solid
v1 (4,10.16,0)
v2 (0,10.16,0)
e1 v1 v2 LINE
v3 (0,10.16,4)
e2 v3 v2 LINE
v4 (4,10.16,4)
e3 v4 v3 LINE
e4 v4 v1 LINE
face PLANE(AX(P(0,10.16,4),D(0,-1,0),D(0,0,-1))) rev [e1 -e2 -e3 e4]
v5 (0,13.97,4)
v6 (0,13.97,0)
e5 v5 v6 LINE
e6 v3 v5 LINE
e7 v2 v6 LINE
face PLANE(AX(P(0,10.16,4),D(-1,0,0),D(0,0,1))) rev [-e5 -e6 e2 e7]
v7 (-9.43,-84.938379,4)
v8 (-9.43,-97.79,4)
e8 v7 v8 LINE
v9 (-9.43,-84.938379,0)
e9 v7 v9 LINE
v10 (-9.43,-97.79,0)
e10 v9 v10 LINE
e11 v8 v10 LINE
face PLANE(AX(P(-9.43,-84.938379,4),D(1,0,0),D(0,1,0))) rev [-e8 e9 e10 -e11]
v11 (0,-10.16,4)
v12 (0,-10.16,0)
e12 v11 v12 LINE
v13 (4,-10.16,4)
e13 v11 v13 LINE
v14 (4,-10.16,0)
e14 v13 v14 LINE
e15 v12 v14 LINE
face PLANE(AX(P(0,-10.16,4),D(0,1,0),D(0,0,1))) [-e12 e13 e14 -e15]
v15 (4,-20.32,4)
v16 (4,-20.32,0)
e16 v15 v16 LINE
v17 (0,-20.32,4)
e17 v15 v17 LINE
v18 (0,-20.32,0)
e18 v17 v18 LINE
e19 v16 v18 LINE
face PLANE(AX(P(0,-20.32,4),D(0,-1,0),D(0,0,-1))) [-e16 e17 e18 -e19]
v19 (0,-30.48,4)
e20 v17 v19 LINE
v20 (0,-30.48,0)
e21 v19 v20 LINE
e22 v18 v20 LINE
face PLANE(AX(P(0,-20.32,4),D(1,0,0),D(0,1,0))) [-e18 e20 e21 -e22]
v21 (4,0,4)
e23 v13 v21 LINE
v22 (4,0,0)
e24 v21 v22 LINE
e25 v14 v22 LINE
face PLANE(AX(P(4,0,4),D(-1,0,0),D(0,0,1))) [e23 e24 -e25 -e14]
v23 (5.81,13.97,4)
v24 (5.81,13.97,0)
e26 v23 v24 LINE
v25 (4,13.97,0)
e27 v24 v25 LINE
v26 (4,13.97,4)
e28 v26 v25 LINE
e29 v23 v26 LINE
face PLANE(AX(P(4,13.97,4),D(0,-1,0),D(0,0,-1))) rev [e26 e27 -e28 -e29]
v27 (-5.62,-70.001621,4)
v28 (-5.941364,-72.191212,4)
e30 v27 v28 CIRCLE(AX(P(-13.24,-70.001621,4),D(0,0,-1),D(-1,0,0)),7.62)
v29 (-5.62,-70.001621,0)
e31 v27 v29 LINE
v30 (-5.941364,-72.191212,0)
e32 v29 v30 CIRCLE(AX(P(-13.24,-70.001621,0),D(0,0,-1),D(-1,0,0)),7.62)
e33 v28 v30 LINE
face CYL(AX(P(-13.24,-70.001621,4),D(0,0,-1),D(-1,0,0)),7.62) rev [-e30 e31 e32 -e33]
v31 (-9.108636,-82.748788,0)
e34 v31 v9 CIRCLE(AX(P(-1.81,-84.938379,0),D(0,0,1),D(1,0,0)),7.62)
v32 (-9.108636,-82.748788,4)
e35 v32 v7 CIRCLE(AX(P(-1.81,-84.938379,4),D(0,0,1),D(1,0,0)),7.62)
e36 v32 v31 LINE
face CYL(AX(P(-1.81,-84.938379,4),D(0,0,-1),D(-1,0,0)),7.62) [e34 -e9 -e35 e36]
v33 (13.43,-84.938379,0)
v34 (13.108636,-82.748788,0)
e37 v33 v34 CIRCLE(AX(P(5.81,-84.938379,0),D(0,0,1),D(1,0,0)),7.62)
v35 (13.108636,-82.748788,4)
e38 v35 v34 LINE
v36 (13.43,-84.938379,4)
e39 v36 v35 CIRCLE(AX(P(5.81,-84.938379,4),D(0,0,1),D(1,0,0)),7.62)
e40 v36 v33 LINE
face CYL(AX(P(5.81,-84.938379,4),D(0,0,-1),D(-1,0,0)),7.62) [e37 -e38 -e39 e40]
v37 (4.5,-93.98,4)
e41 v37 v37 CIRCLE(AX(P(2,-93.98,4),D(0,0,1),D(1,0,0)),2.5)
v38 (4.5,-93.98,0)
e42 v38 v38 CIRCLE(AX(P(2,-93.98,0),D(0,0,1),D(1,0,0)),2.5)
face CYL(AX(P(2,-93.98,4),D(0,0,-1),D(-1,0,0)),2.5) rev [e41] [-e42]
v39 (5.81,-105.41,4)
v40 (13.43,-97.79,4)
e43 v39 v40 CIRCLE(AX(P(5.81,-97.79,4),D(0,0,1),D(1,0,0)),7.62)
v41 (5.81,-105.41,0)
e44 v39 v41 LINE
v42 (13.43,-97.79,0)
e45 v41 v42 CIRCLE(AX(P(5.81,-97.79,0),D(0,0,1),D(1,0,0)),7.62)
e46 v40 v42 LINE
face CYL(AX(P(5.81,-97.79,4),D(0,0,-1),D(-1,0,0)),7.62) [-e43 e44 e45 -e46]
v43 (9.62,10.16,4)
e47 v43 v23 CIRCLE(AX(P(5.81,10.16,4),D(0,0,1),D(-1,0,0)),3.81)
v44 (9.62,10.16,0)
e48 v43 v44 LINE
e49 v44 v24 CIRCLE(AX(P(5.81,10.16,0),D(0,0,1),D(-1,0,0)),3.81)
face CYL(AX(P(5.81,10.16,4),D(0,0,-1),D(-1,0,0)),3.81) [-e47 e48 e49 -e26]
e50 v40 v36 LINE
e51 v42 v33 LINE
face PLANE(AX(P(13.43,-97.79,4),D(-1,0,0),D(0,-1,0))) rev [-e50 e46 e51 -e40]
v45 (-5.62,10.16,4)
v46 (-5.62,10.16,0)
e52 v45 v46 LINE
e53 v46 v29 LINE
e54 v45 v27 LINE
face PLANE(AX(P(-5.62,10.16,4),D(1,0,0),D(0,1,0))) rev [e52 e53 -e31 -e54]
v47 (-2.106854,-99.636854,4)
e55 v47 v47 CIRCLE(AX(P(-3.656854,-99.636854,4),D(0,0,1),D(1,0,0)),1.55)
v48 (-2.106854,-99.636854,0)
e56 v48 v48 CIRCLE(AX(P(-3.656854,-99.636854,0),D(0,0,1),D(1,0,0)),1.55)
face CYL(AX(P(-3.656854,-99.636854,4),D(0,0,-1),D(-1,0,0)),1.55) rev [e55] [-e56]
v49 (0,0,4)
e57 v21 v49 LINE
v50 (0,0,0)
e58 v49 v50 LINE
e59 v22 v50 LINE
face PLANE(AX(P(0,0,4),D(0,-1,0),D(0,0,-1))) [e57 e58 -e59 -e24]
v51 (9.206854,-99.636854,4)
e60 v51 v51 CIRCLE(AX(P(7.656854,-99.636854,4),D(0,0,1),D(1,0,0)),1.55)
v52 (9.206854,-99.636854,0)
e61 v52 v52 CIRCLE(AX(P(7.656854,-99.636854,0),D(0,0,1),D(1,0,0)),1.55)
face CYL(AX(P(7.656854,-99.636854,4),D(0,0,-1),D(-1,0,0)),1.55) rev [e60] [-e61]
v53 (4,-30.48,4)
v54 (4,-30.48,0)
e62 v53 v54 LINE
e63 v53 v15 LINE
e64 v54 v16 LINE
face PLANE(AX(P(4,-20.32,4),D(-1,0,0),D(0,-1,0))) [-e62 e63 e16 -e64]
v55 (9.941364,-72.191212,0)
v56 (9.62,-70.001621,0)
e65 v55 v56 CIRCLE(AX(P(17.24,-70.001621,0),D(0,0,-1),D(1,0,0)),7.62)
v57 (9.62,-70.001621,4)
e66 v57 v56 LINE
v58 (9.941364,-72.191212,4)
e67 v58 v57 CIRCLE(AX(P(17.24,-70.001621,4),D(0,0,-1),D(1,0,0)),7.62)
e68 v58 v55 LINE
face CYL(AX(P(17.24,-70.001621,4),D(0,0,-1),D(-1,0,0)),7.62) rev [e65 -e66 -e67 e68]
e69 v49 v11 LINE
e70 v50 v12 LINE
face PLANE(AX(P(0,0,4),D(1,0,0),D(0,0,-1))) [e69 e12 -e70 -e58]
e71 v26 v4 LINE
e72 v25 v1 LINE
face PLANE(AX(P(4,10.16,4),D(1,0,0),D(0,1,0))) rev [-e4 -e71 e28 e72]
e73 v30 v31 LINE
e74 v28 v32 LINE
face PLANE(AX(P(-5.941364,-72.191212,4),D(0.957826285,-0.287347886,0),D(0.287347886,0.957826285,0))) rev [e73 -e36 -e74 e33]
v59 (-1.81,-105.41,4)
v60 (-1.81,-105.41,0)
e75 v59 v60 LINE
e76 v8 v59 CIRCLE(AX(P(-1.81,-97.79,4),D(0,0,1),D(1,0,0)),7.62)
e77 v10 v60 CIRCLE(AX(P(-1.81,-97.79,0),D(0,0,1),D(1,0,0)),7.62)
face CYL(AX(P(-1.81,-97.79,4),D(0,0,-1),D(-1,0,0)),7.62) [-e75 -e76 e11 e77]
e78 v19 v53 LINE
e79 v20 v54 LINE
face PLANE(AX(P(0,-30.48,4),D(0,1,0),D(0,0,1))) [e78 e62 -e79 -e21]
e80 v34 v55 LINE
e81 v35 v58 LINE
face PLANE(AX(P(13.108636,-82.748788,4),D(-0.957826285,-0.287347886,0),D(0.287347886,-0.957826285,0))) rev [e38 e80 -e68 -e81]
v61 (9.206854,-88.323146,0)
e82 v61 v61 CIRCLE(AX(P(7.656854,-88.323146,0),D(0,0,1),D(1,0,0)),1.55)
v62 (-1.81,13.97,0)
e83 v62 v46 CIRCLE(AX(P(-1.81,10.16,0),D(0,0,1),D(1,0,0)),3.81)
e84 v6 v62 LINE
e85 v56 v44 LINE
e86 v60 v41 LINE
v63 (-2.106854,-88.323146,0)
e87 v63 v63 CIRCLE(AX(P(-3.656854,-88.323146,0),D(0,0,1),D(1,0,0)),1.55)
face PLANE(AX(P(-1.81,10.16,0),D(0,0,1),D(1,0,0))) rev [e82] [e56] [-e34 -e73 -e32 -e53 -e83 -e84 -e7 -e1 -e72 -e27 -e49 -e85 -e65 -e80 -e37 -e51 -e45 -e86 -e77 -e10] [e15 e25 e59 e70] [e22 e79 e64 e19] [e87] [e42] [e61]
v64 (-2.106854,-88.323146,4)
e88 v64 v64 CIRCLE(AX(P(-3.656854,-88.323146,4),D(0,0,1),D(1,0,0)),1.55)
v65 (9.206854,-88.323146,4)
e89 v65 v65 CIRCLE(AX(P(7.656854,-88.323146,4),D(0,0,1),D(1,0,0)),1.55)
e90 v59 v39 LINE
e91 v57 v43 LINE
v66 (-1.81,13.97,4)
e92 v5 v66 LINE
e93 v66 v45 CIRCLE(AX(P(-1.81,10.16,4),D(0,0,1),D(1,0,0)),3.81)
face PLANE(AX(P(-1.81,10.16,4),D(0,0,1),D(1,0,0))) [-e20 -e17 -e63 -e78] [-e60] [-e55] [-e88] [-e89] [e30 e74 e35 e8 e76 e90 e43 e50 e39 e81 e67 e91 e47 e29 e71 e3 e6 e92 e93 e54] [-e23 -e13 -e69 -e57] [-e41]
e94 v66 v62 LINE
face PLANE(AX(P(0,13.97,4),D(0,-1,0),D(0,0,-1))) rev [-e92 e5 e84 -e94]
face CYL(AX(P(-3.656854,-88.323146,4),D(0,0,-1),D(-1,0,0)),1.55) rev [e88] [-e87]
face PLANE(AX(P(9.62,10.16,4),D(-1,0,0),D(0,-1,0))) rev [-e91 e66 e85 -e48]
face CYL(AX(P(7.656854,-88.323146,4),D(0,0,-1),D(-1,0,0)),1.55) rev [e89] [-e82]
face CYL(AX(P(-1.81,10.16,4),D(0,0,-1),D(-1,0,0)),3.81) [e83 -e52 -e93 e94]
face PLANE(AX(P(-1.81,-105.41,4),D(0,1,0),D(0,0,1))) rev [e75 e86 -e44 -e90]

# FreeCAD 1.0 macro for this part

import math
import FreeCAD as App
import Part
import Sketcher
Q = App.Units.Quantity

doc = App.newDocument("Part")
params = doc.addObject("Spreadsheet::Sheet", "Params")
for row, (alias, value) in enumerate([
    ("sketch1_radius", "0.3 in"),
    ("sketch1_radius2", "0.15 in"),
    ("sketch1_width", "0.3 in"),
    ("sketch1_height", "0.4 in"),
    ("pad1_length", "4 mm"),
], start=1):
    params.set(f"A{row}", alias)
    params.set(f"B{row}", "=" + value)
    params.setAlias(f"B{row}", alias)

body = doc.addObject("PartDesign::Body", "Body")

sketch1 = body.newObject("Sketcher::SketchObject", "Sketch")
sketch1.AttachmentSupport = (doc.getObject("XY_Plane"), [""])
sketch1.MapMode = "FlatFace"
sketch1.addGeometry(Part.LineSegment(App.Vector(4, 10.2, 0), App.Vector(0, 10.2, 0)), False)
sketch1.addGeometry(Part.LineSegment(App.Vector(0, 10.2, 0), App.Vector(0, 14, 0)), False)
sketch1.addGeometry(Part.LineSegment(App.Vector(0, 14, 0), App.Vector(-1.8, 14, 0)), False)
sketch1.addGeometry(Part.ArcOfCircle(Part.Circle(App.Vector(-1.8, 10.2, 0), App.Vector(0, 0, 1), 3.8), math.radians(90), math.radians(180)), False)
sketch1.addGeometry(Part.LineSegment(App.Vector(-5.6, 10.2, 0), App.Vector(-5.6, -70, 0)), False)
sketch1.addGeometry(Part.ArcOfCircle(Part.Circle(App.Vector(-13.2, -70, 0), App.Vector(0, 0, 1), 7.6), math.radians(-16.7), math.radians(0)), False)
sketch1.addGeometry(Part.LineSegment(App.Vector(-5.9, -72.2, 0), App.Vector(-9.1, -82.7, 0)), False)
sketch1.addGeometry(Part.ArcOfCircle(Part.Circle(App.Vector(-1.8, -84.9, 0), App.Vector(0, 0, 1), 7.6), math.radians(163.3), math.radians(180)), False)
sketch1.addGeometry(Part.LineSegment(App.Vector(-9.4, -84.9, 0), App.Vector(-9.4, -97.8, 0)), False)
sketch1.addGeometry(Part.ArcOfCircle(Part.Circle(App.Vector(-1.8, -97.8, 0), App.Vector(0, 0, 1), 7.6), math.radians(180), math.radians(270)), False)
sketch1.addGeometry(Part.LineSegment(App.Vector(-1.8, -105.4, 0), App.Vector(5.8, -105.4, 0)), False)
sketch1.addGeometry(Part.ArcOfCircle(Part.Circle(App.Vector(5.8, -97.8, 0), App.Vector(0, 0, 1), 7.6), math.radians(-90), math.radians(0)), False)
sketch1.addGeometry(Part.LineSegment(App.Vector(13.4, -97.8, 0), App.Vector(13.4, -84.9, 0)), False)
sketch1.addGeometry(Part.ArcOfCircle(Part.Circle(App.Vector(5.8, -84.9, 0), App.Vector(0, 0, 1), 7.6), math.radians(0), math.radians(16.7)), False)
sketch1.addGeometry(Part.LineSegment(App.Vector(13.1, -82.7, 0), App.Vector(9.9, -72.2, 0)), False)
sketch1.addGeometry(Part.ArcOfCircle(Part.Circle(App.Vector(17.2, -70, 0), App.Vector(0, 0, 1), 7.6), math.radians(180), math.radians(196.7)), False)
sketch1.addGeometry(Part.LineSegment(App.Vector(9.6, -70, 0), App.Vector(9.6, 10.2, 0)), False)
sketch1.addGeometry(Part.ArcOfCircle(Part.Circle(App.Vector(5.8, 10.2, 0), App.Vector(0, 0, 1), 3.8), math.radians(0), math.radians(90)), False)
sketch1.addGeometry(Part.LineSegment(App.Vector(5.8, 14, 0), App.Vector(4, 14, 0)), False)
sketch1.addGeometry(Part.LineSegment(App.Vector(4, 14, 0), App.Vector(4, 10.2, 0)), False)
sketch1.addGeometry(Part.Circle(App.Vector(7.7, -99.6, 0), App.Vector(0, 0, 1), 1.6), False)
sketch1.addGeometry(Part.Circle(App.Vector(7.7, -88.3, 0), App.Vector(0, 0, 1), 1.6), False)
sketch1.addGeometry(Part.Circle(App.Vector(2, -94, 0), App.Vector(0, 0, 1), 2.5), False)
sketch1.addGeometry(Part.Circle(App.Vector(-3.7, -99.6, 0), App.Vector(0, 0, 1), 1.6), False)
sketch1.addGeometry(Part.Circle(App.Vector(-3.7, -88.3, 0), App.Vector(0, 0, 1), 1.6), False)
sketch1.addGeometry(Part.LineSegment(App.Vector(0, -30.5, 0), App.Vector(0, -20.3, 0)), False)
sketch1.addGeometry(Part.LineSegment(App.Vector(0, -20.3, 0), App.Vector(4, -20.3, 0)), False)
sketch1.addGeometry(Part.LineSegment(App.Vector(4, -20.3, 0), App.Vector(4, -30.5, 0)), False)
sketch1.addGeometry(Part.LineSegment(App.Vector(4, -30.5, 0), App.Vector(0, -30.5, 0)), False)
sketch1.addGeometry(Part.LineSegment(App.Vector(0, -10.2, 0), App.Vector(0, 0, 0)), False)
sketch1.addGeometry(Part.LineSegment(App.Vector(0, 0, 0), App.Vector(4, 0, 0)), False)
sketch1.addGeometry(Part.LineSegment(App.Vector(4, 0, 0), App.Vector(4, -10.2, 0)), False)
sketch1.addGeometry(Part.LineSegment(App.Vector(4, -10.2, 0), App.Vector(0, -10.2, 0)), False)
sketch1.addConstraint(Sketcher.Constraint("Coincident", 0, 2, 1, 1))
sketch1.addConstraint(Sketcher.Constraint("Coincident", 1, 2, 2, 1))
sketch1.addConstraint(Sketcher.Constraint("Tangent", 2, 2, 3, 1))
sketch1.addConstraint(Sketcher.Constraint("Tangent", 3, 2, 4, 1))
sketch1.addConstraint(Sketcher.Constraint("Tangent", 4, 2, 5, 2))
sketch1.addConstraint(Sketcher.Constraint("Tangent", 5, 1, 6, 1))
sketch1.addConstraint(Sketcher.Constraint("Tangent", 6, 2, 7, 1))
sketch1.addConstraint(Sketcher.Constraint("Tangent", 7, 2, 8, 1))
sketch1.addConstraint(Sketcher.Constraint("Tangent", 8, 2, 9, 1))
sketch1.addConstraint(Sketcher.Constraint("Tangent", 9, 2, 10, 1))
sketch1.addConstraint(Sketcher.Constraint("Tangent", 10, 2, 11, 1))
sketch1.addConstraint(Sketcher.Constraint("Tangent", 11, 2, 12, 1))
sketch1.addConstraint(Sketcher.Constraint("Tangent", 12, 2, 13, 1))
sketch1.addConstraint(Sketcher.Constraint("Tangent", 13, 2, 14, 1))
sketch1.addConstraint(Sketcher.Constraint("Tangent", 14, 2, 15, 2))
sketch1.addConstraint(Sketcher.Constraint("Tangent", 15, 1, 16, 1))
sketch1.addConstraint(Sketcher.Constraint("Tangent", 16, 2, 17, 1))
sketch1.addConstraint(Sketcher.Constraint("Tangent", 17, 2, 18, 1))
sketch1.addConstraint(Sketcher.Constraint("Coincident", 18, 2, 19, 1))
sketch1.addConstraint(Sketcher.Constraint("Coincident", 19, 2, 0, 1))
sketch1.addConstraint(Sketcher.Constraint("Coincident", 25, 2, 26, 1))
sketch1.addConstraint(Sketcher.Constraint("Coincident", 26, 2, 27, 1))
sketch1.addConstraint(Sketcher.Constraint("Coincident", 27, 2, 28, 1))
sketch1.addConstraint(Sketcher.Constraint("Coincident", 28, 2, 25, 1))
sketch1.addConstraint(Sketcher.Constraint("Coincident", 29, 2, 30, 1))
sketch1.addConstraint(Sketcher.Constraint("Coincident", 30, 2, 31, 1))
sketch1.addConstraint(Sketcher.Constraint("Coincident", 31, 2, 32, 1))
sketch1.addConstraint(Sketcher.Constraint("Coincident", 32, 2, 29, 1))
sketch1.addConstraint(Sketcher.Constraint("Horizontal", 0))
sketch1.addConstraint(Sketcher.Constraint("Vertical", 1))
sketch1.addConstraint(Sketcher.Constraint("Horizontal", 2))
sketch1.addConstraint(Sketcher.Constraint("Vertical", 4))
sketch1.addConstraint(Sketcher.Constraint("Vertical", 8))
sketch1.addConstraint(Sketcher.Constraint("Horizontal", 10))
sketch1.addConstraint(Sketcher.Constraint("Vertical", 12))
sketch1.addConstraint(Sketcher.Constraint("Vertical", 16))
sketch1.addConstraint(Sketcher.Constraint("Horizontal", 18))
sketch1.addConstraint(Sketcher.Constraint("Vertical", 19))
sketch1.addConstraint(Sketcher.Constraint("Vertical", 25))
sketch1.addConstraint(Sketcher.Constraint("Horizontal", 26))
sketch1.addConstraint(Sketcher.Constraint("Vertical", 27))
sketch1.addConstraint(Sketcher.Constraint("Horizontal", 28))
sketch1.addConstraint(Sketcher.Constraint("Vertical", 29))
sketch1.addConstraint(Sketcher.Constraint("Horizontal", 30))
sketch1.addConstraint(Sketcher.Constraint("Vertical", 31))
sketch1.addConstraint(Sketcher.Constraint("Horizontal", 32))
sketch1.addConstraint(Sketcher.Constraint("Coincident", 29, 2, -1, 1))
sketch1.addConstraint(Sketcher.Constraint("Equal", 5, 7))
sketch1.addConstraint(Sketcher.Constraint("Equal", 7, 9))
sketch1.addConstraint(Sketcher.Constraint("Equal", 9, 11))
sketch1.addConstraint(Sketcher.Constraint("Equal", 11, 13))
sketch1.addConstraint(Sketcher.Constraint("Equal", 13, 15))
sketch1.addConstraint(Sketcher.Constraint("Equal", 3, 17))
sketch1.addConstraint(Sketcher.Constraint("Equal", 20, 21))
sketch1.addConstraint(Sketcher.Constraint("Equal", 21, 23))
sketch1.addConstraint(Sketcher.Constraint("Equal", 23, 24))
sketch1.addConstraint(Sketcher.Constraint("Symmetric", 0, 2, 32, 2, -1, 1))
sketch1.addConstraint(Sketcher.Constraint("PointOnObject", 25, 2, -2))
sketch1.addConstraint(Sketcher.Constraint("Horizontal", 7, 3, 13, 3))
sketch1.addConstraint(Sketcher.Constraint("Horizontal", 5, 3, 15, 3))
sketch1.addConstraint(Sketcher.Constraint("Horizontal", 3, 3, 17, 3))
sketch1.addConstraint(Sketcher.Constraint("Horizontal", 20, 3, 23, 3))
sketch1.addConstraint(Sketcher.Constraint("Horizontal", 21, 3, 24, 3))
sketch1.addConstraint(Sketcher.Constraint("Horizontal", 17, 3, 0, 2))
sketch1.addConstraint(Sketcher.Constraint("Horizontal", 6, 2, 13, 2))
sketch1.addConstraint(Sketcher.Constraint("Vertical", 3, 3, 7, 3))
sketch1.addConstraint(Sketcher.Constraint("Vertical", 20, 3, 21, 3))
sketch1.addConstraint(Sketcher.Constraint("Vertical", 23, 3, 24, 3))
sketch1.addConstraint(Sketcher.Constraint("Vertical", 19, 2, 26, 2))
sketch1.addConstraint(Sketcher.Constraint("Vertical", 27, 2, 30, 2))
sketch1.addConstraint(Sketcher.Constraint("Equal", 2, 18))
sketch1.addConstraint(Sketcher.Constraint("Equal", 27, 29))
sketch1.addConstraint(Sketcher.Constraint("Radius", 5, Q("0.3 in")))
sketch1.addConstraint(Sketcher.Constraint("Radius", 3, Q("0.15 in")))
sketch1.addConstraint(Sketcher.Constraint("DistanceX", 10, 1, 10, 2, Q("0.3 in")))
sketch1.addConstraint(Sketcher.Constraint("DistanceY", 25, 1, 25, 2, Q("0.4 in")))
sketch1.addConstraint(Sketcher.Constraint("DistanceY", 22, 3, -1, 1, Q("3.7 in")))
sketch1.addConstraint(Sketcher.Constraint("DistanceY", 25, 2, -1, 1, Q("0.8 in")))
sketch1.addConstraint(Sketcher.Constraint("Diameter", 20, Q("3.1 mm")))
sketch1.addConstraint(Sketcher.Constraint("Diameter", 22, Q("5 mm")))
sketch1.addConstraint(Sketcher.Constraint("DistanceY", 9, 3, -1, 1, Q("3.85 in")))
sketch1.addConstraint(Sketcher.Constraint("DistanceX", 9, 3, 22, 3, Q("0.15 in")))
sketch1.addConstraint(Sketcher.Constraint("DistanceX", 0, 2, 0, 1, Q("4 mm")))
sketch1.addConstraint(Sketcher.Constraint("DistanceY", 4, 2, 4, 1, Q("80.161621 mm")))
sketch1.addConstraint(Sketcher.Constraint("DistanceY", 8, 2, 8, 1, Q("12.851621 mm")))
sketch1.addConstraint(Sketcher.Constraint("DistanceY", 20, 3, 21, 3, Q("11.313708 mm")))
sketch1.addConstraint(Sketcher.Constraint("DistanceX", 23, 3, 20, 3, Q("11.313708 mm")))
sketch1.addConstraint(Sketcher.Constraint("DistanceX", 5, 1, 24, 3, Q("2.284509 mm")))
sketch1.addConstraint(Sketcher.Constraint("DistanceY", 24, 3, 6, 2, Q("5.574358 mm")))
sketch1.setExpression("Constraints[72]", "Params.sketch1_radius")
sketch1.setExpression("Constraints[73]", "Params.sketch1_radius2")
sketch1.setExpression("Constraints[74]", "Params.sketch1_width")
sketch1.setExpression("Constraints[75]", "Params.sketch1_height")
pad1 = body.newObject("PartDesign::Pad", "Pad")
pad1.Profile = sketch1
pad1.setExpression("Length", "Params.pad1_length")

doc.recompute()
